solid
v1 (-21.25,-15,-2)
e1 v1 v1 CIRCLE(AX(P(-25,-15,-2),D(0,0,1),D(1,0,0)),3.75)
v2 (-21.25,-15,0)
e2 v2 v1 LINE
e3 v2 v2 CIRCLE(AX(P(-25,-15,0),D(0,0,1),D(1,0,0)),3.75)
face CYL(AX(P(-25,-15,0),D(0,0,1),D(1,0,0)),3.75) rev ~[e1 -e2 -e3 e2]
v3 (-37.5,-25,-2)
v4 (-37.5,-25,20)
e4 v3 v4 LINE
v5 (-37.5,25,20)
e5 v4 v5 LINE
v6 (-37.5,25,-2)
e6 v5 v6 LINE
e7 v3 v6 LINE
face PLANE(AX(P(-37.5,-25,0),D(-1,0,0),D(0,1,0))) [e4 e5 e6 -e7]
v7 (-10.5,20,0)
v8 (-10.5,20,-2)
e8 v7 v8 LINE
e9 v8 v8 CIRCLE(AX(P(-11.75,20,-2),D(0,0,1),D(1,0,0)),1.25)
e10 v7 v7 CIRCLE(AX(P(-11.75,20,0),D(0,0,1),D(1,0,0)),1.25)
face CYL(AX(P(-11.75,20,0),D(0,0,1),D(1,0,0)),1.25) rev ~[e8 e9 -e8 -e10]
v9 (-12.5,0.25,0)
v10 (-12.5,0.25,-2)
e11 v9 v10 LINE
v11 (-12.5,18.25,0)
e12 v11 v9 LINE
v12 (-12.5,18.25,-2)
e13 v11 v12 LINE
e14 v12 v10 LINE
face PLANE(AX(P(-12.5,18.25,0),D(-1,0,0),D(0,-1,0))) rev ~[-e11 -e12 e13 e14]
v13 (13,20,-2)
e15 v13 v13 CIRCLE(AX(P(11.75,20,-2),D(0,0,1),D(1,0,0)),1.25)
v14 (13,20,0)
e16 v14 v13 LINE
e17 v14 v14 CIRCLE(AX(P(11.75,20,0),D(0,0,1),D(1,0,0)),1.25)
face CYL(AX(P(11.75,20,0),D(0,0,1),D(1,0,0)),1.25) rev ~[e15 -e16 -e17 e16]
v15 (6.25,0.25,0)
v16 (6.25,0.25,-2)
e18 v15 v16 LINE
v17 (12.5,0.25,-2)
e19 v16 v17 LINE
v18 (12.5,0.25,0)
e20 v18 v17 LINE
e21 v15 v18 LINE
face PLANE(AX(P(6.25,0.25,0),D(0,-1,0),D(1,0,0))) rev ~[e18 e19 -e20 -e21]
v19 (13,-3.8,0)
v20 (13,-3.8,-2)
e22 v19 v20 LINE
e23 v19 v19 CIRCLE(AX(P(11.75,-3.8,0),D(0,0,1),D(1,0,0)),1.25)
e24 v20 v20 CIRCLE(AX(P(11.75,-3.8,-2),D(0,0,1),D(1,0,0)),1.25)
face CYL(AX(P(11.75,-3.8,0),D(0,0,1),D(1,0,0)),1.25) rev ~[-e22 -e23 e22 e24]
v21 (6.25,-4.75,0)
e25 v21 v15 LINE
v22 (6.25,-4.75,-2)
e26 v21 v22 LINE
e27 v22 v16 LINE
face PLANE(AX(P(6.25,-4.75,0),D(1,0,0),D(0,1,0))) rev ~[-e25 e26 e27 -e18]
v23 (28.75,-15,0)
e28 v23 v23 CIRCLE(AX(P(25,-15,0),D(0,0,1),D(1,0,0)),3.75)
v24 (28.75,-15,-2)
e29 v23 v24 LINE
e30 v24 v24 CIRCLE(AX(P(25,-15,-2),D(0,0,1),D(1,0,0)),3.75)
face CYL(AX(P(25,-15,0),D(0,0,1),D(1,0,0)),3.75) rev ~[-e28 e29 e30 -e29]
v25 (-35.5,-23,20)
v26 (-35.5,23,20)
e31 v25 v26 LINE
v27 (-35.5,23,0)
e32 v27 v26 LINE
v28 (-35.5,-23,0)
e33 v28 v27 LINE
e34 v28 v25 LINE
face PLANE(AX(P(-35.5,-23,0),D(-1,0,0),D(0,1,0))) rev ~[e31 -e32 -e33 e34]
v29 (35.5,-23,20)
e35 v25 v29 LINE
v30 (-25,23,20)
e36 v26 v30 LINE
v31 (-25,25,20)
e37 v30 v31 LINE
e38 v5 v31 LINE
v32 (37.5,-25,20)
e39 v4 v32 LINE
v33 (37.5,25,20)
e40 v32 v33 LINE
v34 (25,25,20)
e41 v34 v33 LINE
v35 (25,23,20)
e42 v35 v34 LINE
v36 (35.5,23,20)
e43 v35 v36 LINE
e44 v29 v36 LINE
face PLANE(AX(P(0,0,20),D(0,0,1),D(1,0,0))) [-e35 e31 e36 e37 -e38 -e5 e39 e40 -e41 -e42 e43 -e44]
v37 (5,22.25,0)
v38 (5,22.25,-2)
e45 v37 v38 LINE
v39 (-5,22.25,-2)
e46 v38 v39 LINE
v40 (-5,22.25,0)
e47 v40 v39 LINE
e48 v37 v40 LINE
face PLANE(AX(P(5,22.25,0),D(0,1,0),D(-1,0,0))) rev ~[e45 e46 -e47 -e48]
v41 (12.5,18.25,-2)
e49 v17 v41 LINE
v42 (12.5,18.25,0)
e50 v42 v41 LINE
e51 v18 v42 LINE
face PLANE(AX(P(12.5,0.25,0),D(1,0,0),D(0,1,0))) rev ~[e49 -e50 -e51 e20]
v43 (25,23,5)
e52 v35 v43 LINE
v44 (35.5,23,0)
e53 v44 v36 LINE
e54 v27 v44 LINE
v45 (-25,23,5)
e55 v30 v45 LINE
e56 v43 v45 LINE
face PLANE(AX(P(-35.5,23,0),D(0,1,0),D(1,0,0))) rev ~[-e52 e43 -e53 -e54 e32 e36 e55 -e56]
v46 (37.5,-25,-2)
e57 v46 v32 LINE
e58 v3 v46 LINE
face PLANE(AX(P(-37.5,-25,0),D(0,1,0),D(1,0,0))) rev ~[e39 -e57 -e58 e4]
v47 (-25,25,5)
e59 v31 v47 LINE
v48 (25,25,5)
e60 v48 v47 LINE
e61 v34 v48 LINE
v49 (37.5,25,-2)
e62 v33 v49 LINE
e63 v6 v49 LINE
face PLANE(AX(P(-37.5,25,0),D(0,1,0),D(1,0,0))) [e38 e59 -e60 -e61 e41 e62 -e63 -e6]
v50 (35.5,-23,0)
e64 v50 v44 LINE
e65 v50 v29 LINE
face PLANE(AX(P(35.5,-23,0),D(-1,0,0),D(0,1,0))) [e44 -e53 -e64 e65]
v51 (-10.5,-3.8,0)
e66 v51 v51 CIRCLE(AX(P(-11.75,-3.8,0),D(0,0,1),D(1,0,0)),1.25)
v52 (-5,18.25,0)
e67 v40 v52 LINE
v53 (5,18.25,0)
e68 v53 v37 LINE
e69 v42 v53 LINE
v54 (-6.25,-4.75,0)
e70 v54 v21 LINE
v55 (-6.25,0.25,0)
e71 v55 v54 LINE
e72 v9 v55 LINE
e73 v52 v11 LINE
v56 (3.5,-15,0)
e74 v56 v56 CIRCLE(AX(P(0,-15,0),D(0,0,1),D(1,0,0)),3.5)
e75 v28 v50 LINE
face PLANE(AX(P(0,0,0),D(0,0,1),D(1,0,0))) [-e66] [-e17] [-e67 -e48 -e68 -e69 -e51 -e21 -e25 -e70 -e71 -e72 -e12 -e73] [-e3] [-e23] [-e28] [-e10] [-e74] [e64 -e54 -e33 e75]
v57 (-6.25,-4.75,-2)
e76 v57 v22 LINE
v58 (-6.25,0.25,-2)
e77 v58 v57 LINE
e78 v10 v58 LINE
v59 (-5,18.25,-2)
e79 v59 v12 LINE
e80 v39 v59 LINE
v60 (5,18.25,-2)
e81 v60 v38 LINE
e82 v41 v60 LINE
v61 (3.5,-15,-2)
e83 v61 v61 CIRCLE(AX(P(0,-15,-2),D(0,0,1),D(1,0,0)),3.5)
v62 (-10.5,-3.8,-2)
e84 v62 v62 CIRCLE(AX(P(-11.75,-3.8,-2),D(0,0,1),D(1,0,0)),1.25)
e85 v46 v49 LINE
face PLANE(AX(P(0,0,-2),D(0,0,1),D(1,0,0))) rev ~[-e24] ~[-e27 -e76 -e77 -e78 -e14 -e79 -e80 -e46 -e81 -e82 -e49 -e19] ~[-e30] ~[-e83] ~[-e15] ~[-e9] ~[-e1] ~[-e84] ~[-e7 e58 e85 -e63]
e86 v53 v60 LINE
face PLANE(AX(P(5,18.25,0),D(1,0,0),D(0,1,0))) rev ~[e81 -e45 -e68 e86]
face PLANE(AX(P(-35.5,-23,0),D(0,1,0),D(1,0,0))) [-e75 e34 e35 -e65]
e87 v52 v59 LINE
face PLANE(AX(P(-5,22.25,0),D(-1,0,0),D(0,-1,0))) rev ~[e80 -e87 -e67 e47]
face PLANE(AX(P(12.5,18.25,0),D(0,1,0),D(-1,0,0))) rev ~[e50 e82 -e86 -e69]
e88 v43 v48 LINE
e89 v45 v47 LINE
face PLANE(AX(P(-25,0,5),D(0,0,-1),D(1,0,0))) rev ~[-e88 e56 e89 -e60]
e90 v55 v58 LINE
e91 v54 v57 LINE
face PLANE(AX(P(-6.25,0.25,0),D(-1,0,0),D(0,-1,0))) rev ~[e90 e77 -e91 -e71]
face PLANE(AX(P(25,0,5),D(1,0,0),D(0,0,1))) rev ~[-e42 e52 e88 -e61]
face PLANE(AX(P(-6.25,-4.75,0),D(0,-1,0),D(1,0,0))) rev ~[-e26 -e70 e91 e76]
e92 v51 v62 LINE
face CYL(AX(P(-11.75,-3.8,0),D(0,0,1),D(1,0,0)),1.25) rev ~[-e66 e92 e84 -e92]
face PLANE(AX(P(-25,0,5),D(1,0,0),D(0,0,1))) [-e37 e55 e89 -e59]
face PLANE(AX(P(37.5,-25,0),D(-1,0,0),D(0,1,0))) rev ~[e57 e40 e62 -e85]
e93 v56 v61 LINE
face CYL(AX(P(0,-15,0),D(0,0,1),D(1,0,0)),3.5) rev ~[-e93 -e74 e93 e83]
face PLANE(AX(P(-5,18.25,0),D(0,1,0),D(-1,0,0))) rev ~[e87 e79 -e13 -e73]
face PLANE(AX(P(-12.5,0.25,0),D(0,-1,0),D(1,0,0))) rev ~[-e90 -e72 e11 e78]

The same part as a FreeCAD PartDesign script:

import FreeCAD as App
import Part
import Sketcher
from FreeCAD import Vector
Q = App.Units.Quantity

doc = App.newDocument("Part")
body = doc.addObject("PartDesign::Body", "Body")

sketch1 = doc.addObject("Sketcher::SketchObject", "Sketch")
body.addObject(sketch1)
sketch1.AttachmentSupport = (doc.XY_Plane, [""])
sketch1.MapMode = "FlatFace"
sketch1.addGeometry(Part.LineSegment(Vector(-37.5, 25, 0), Vector(-37.5, -25, 0)), False)
sketch1.addGeometry(Part.LineSegment(Vector(-37.5, -25, 0), Vector(37.5, -25, 0)), False)
sketch1.addGeometry(Part.LineSegment(Vector(37.5, -25, 0), Vector(37.5, 25, 0)), False)
sketch1.addGeometry(Part.LineSegment(Vector(37.5, 25, 0), Vector(-37.5, 25, 0)), False)
sketch1.addGeometry(Part.Circle(Vector(-25, -15, 0), Vector(0, 0, 1), 3.75), False)
sketch1.addGeometry(Part.Circle(Vector(-11.75, -3.8, 0), Vector(0, 0, 1), 1.25), False)
sketch1.addGeometry(Part.Circle(Vector(0, -15, 0), Vector(0, 0, 1), 3.5), False)
sketch1.addGeometry(Part.Circle(Vector(25, -15, 0), Vector(0, 0, 1), 3.75), False)
sketch1.addGeometry(Part.Circle(Vector(11.75, -3.8, 0), Vector(0, 0, 1), 1.25), False)
sketch1.addGeometry(Part.Circle(Vector(-11.75, 20, 0), Vector(0, 0, 1), 1.25), False)
sketch1.addGeometry(Part.LineSegment(Vector(-12.5, 0.25, 0), Vector(-12.5, 18.25, 0)), False)
sketch1.addGeometry(Part.LineSegment(Vector(-12.5, 18.25, 0), Vector(-5, 18.25, 0)), False)
sketch1.addGeometry(Part.LineSegment(Vector(-5, 18.25, 0), Vector(-5, 22.25, 0)), False)
sketch1.addGeometry(Part.LineSegment(Vector(-5, 22.25, 0), Vector(5, 22.25, 0)), False)
sketch1.addGeometry(Part.LineSegment(Vector(5, 22.25, 0), Vector(5, 18.25, 0)), False)
sketch1.addGeometry(Part.LineSegment(Vector(5, 18.25, 0), Vector(12.5, 18.25, 0)), False)
sketch1.addGeometry(Part.LineSegment(Vector(12.5, 18.25, 0), Vector(12.5, 0.25, 0)), False)
sketch1.addGeometry(Part.LineSegment(Vector(12.5, 0.25, 0), Vector(6.25, 0.25, 0)), False)
sketch1.addGeometry(Part.LineSegment(Vector(6.25, 0.25, 0), Vector(6.25, -4.75, 0)), False)
sketch1.addGeometry(Part.LineSegment(Vector(6.25, -4.75, 0), Vector(-6.25, -4.75, 0)), False)
sketch1.addGeometry(Part.LineSegment(Vector(-6.25, -4.75, 0), Vector(-6.25, 0.25, 0)), False)
sketch1.addGeometry(Part.LineSegment(Vector(-6.25, 0.25, 0), Vector(-12.5, 0.25, 0)), False)
sketch1.addGeometry(Part.Circle(Vector(11.75, 20, 0), Vector(0, 0, 1), 1.25), False)
sketch1.addConstraint(Sketcher.Constraint("Coincident", 0, 2, 1, 1))
sketch1.addConstraint(Sketcher.Constraint("Coincident", 1, 2, 2, 1))
sketch1.addConstraint(Sketcher.Constraint("Coincident", 2, 2, 3, 1))
sketch1.addConstraint(Sketcher.Constraint("Coincident", 3, 2, 0, 1))
sketch1.addConstraint(Sketcher.Constraint("Coincident", 10, 2, 11, 1))
sketch1.addConstraint(Sketcher.Constraint("Coincident", 11, 2, 12, 1))
sketch1.addConstraint(Sketcher.Constraint("Coincident", 12, 2, 13, 1))
sketch1.addConstraint(Sketcher.Constraint("Coincident", 13, 2, 14, 1))
sketch1.addConstraint(Sketcher.Constraint("Coincident", 14, 2, 15, 1))
sketch1.addConstraint(Sketcher.Constraint("Coincident", 15, 2, 16, 1))
sketch1.addConstraint(Sketcher.Constraint("Coincident", 16, 2, 17, 1))
sketch1.addConstraint(Sketcher.Constraint("Coincident", 17, 2, 18, 1))
sketch1.addConstraint(Sketcher.Constraint("Coincident", 18, 2, 19, 1))
sketch1.addConstraint(Sketcher.Constraint("Coincident", 19, 2, 20, 1))
sketch1.addConstraint(Sketcher.Constraint("Coincident", 20, 2, 21, 1))
sketch1.addConstraint(Sketcher.Constraint("Coincident", 21, 2, 10, 1))
sketch1.addConstraint(Sketcher.Constraint("Vertical", 0))
sketch1.addConstraint(Sketcher.Constraint("Horizontal", 1))
sketch1.addConstraint(Sketcher.Constraint("Vertical", 2))
sketch1.addConstraint(Sketcher.Constraint("Horizontal", 3))
sketch1.addConstraint(Sketcher.Constraint("Vertical", 10))
sketch1.addConstraint(Sketcher.Constraint("Horizontal", 11))
sketch1.addConstraint(Sketcher.Constraint("Vertical", 12))
sketch1.addConstraint(Sketcher.Constraint("Horizontal", 13))
sketch1.addConstraint(Sketcher.Constraint("Vertical", 14))
sketch1.addConstraint(Sketcher.Constraint("Horizontal", 15))
sketch1.addConstraint(Sketcher.Constraint("Vertical", 16))
sketch1.addConstraint(Sketcher.Constraint("Horizontal", 17))
sketch1.addConstraint(Sketcher.Constraint("Vertical", 18))
sketch1.addConstraint(Sketcher.Constraint("Horizontal", 19))
sketch1.addConstraint(Sketcher.Constraint("Vertical", 20))
sketch1.addConstraint(Sketcher.Constraint("Horizontal", 21))
sketch1.addConstraint(Sketcher.Constraint("Equal", 4, 7))
sketch1.addConstraint(Sketcher.Constraint("Equal", 5, 8))
sketch1.addConstraint(Sketcher.Constraint("Equal", 8, 9))
sketch1.addConstraint(Sketcher.Constraint("Equal", 9, 22))
sketch1.addConstraint(Sketcher.Constraint("Symmetric", 0, 2, 2, 2, -1, 1))
sketch1.addConstraint(Sketcher.Constraint("Symmetric", 4, 3, 7, 3, -2))
sketch1.addConstraint(Sketcher.Constraint("Symmetric", 5, 3, 8, 3, -2))
sketch1.addConstraint(Sketcher.Constraint("Symmetric", 9, 3, 22, 3, -2))
sketch1.addConstraint(Sketcher.Constraint("Symmetric", 11, 2, 14, 2, -2))
sketch1.addConstraint(Sketcher.Constraint("Symmetric", 17, 2, 20, 2, -2))
sketch1.addConstraint(Sketcher.Constraint("PointOnObject", 6, 3, -2))
sketch1.addConstraint(Sketcher.Constraint("Horizontal", 4, 3, 6, 3))
sketch1.addConstraint(Sketcher.Constraint("Vertical", 5, 3, 9, 3))
sketch1.addConstraint(Sketcher.Constraint("Equal", 11, 15))
sketch1.addConstraint(Sketcher.Constraint("Diameter", 6, Q("7 mm")))
sketch1.addConstraint(Sketcher.Constraint("Diameter", 4, Q("7.5 mm")))
sketch1.addConstraint(Sketcher.Constraint("Diameter", 5, Q("2.5 mm")))
sketch1.addConstraint(Sketcher.Constraint("DistanceX", 1, 1, 1, 2, Q("75 mm")))
sketch1.addConstraint(Sketcher.Constraint("DistanceX", 13, 1, 13, 2, Q("10 mm")))
sketch1.addConstraint(Sketcher.Constraint("DistanceY", 0, 2, 0, 1, Q("50 mm")))
sketch1.addConstraint(Sketcher.Constraint("DistanceY", 10, 1, 10, 2, Q("18 mm")))
sketch1.addConstraint(Sketcher.Constraint("DistanceY", 12, 1, 12, 2, Q("4 mm")))
sketch1.addConstraint(Sketcher.Constraint("DistanceY", 18, 2, 18, 1, Q("5 mm")))
sketch1.addConstraint(Sketcher.Constraint("DistanceX", 11, 1, 11, 2, Q("7.5 mm")))
sketch1.addConstraint(Sketcher.Constraint("DistanceX", 19, 2, 19, 1, Q("12.5 mm")))
sketch1.addConstraint(Sketcher.Constraint("DistanceX", 4, 3, -1, 1, Q("25 mm")))
sketch1.addConstraint(Sketcher.Constraint("DistanceY", 4, 3, -1, 1, Q("15 mm")))
sketch1.addConstraint(Sketcher.Constraint("DistanceY", -1, 1, 9, 3, Q("20 mm")))
sketch1.addConstraint(Sketcher.Constraint("DistanceX", 5, 3, 17, 2, Q("18 mm")))
sketch1.addConstraint(Sketcher.Constraint("DistanceY", 5, 3, -1, 1, Q("3.8 mm")))
sketch1.addConstraint(Sketcher.Constraint("DistanceY", -1, 1, 10, 2, Q("18.25 mm")))
pad1 = doc.addObject("PartDesign::Pad", "Pad")
body.addObject(pad1)
pad1.Profile = sketch1
pad1.Length = 2
pad1.Reversed = True

sketch2 = doc.addObject("Sketcher::SketchObject", "Sketch001")
body.addObject(sketch2)
sketch2.AttachmentSupport = (doc.XY_Plane, [""])
sketch2.MapMode = "FlatFace"
sketch2.addGeometry(Part.LineSegment(Vector(-37.5, 25, 0), Vector(-37.5, -25, 0)), False)
sketch2.addGeometry(Part.LineSegment(Vector(-37.5, -25, 0), Vector(37.5, -25, 0)), False)
sketch2.addGeometry(Part.LineSegment(Vector(37.5, -25, 0), Vector(37.5, 25, 0)), False)
sketch2.addGeometry(Part.LineSegment(Vector(37.5, 25, 0), Vector(-37.5, 25, 0)), False)
sketch2.addGeometry(Part.LineSegment(Vector(35.5, -23, 0), Vector(-35.5, -23, 0)), False)
sketch2.addGeometry(Part.LineSegment(Vector(-35.5, -23, 0), Vector(-35.5, 23, 0)), False)
sketch2.addGeometry(Part.LineSegment(Vector(-35.5, 23, 0), Vector(35.5, 23, 0)), False)
sketch2.addGeometry(Part.LineSegment(Vector(35.5, 23, 0), Vector(35.5, -23, 0)), False)
sketch2.addConstraint(Sketcher.Constraint("Coincident", 0, 2, 1, 1))
sketch2.addConstraint(Sketcher.Constraint("Coincident", 1, 2, 2, 1))
sketch2.addConstraint(Sketcher.Constraint("Coincident", 2, 2, 3, 1))
sketch2.addConstraint(Sketcher.Constraint("Coincident", 3, 2, 0, 1))
sketch2.addConstraint(Sketcher.Constraint("Coincident", 4, 2, 5, 1))
sketch2.addConstraint(Sketcher.Constraint("Coincident", 5, 2, 6, 1))
sketch2.addConstraint(Sketcher.Constraint("Coincident", 6, 2, 7, 1))
sketch2.addConstraint(Sketcher.Constraint("Coincident", 7, 2, 4, 1))
sketch2.addConstraint(Sketcher.Constraint("Vertical", 0))
sketch2.addConstraint(Sketcher.Constraint("Horizontal", 1))
sketch2.addConstraint(Sketcher.Constraint("Vertical", 2))
sketch2.addConstraint(Sketcher.Constraint("Horizontal", 3))
sketch2.addConstraint(Sketcher.Constraint("Horizontal", 4))
sketch2.addConstraint(Sketcher.Constraint("Vertical", 5))
sketch2.addConstraint(Sketcher.Constraint("Horizontal", 6))
sketch2.addConstraint(Sketcher.Constraint("Vertical", 7))
sketch2.addConstraint(Sketcher.Constraint("Symmetric", 0, 2, 2, 2, -1, 1))
sketch2.addConstraint(Sketcher.Constraint("Symmetric", 4, 2, 6, 2, -1, 1))
sketch2.addConstraint(Sketcher.Constraint("DistanceX", 1, 1, 1, 2, Q("75 mm")))
sketch2.addConstraint(Sketcher.Constraint("DistanceX", 4, 2, 4, 1, Q("71 mm")))
sketch2.addConstraint(Sketcher.Constraint("DistanceY", 0, 2, 0, 1, Q("50 mm")))
sketch2.addConstraint(Sketcher.Constraint("DistanceY", 5, 1, 5, 2, Q("46 mm")))
pad2 = doc.addObject("PartDesign::Pad", "Pad001")
body.addObject(pad2)
pad2.Profile = sketch2
pad2.Length = 20

sketch3 = doc.addObject("Sketcher::SketchObject", "Sketch002")
body.addObject(sketch3)
sketch3.AttachmentSupport = (doc.XZ_Plane, [""])
sketch3.MapMode = "FlatFace"
sketch3.addGeometry(Part.LineSegment(Vector(-25, 20, 0), Vector(-25, 5, 0)), False)
sketch3.addGeometry(Part.LineSegment(Vector(-25, 5, 0), Vector(25, 5, 0)), False)
sketch3.addGeometry(Part.LineSegment(Vector(25, 5, 0), Vector(25, 20, 0)), False)
sketch3.addGeometry(Part.LineSegment(Vector(25, 20, 0), Vector(-25, 20, 0)), False)
sketch3.addConstraint(Sketcher.Constraint("Coincident", 0, 2, 1, 1))
sketch3.addConstraint(Sketcher.Constraint("Coincident", 1, 2, 2, 1))
sketch3.addConstraint(Sketcher.Constraint("Coincident", 2, 2, 3, 1))
sketch3.addConstraint(Sketcher.Constraint("Coincident", 3, 2, 0, 1))
sketch3.addConstraint(Sketcher.Constraint("Vertical", 0))
sketch3.addConstraint(Sketcher.Constraint("Horizontal", 1))
sketch3.addConstraint(Sketcher.Constraint("Vertical", 2))
sketch3.addConstraint(Sketcher.Constraint("Horizontal", 3))
sketch3.addConstraint(Sketcher.Constraint("DistanceX", 1, 1, 1, 2, Q("50 mm")))
sketch3.addConstraint(Sketcher.Constraint("DistanceY", 0, 2, 0, 1, Q("15 mm")))
sketch3.addConstraint(Sketcher.Constraint("DistanceX", 0, 2, -1, 1, Q("25 mm")))
sketch3.addConstraint(Sketcher.Constraint("DistanceY", -1, 1, 0, 2, Q("5 mm")))
pocket1 = doc.addObject("PartDesign::Pocket", "Pocket")
body.addObject(pocket1)
pocket1.Profile = sketch3
pocket1.Type = "ThroughAll"

doc.recompute()
